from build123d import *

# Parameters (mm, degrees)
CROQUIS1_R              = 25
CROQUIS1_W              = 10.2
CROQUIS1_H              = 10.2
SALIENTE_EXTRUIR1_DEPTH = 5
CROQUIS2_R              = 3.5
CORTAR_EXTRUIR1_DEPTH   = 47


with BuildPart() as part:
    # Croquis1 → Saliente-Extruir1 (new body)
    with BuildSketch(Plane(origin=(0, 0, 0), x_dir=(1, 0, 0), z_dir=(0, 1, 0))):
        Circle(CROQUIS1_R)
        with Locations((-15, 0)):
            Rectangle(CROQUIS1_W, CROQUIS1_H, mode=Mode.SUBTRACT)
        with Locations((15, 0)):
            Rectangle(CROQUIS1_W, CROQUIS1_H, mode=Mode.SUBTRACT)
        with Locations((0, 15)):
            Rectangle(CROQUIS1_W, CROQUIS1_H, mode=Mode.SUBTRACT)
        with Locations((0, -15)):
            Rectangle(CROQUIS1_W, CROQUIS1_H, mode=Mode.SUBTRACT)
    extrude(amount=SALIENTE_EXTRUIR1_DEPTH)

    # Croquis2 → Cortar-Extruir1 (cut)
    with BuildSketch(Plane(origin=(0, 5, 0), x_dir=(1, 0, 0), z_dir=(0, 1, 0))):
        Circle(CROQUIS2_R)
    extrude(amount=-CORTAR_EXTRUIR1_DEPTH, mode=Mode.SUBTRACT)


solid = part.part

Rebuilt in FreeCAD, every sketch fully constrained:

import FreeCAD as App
import Part
import Sketcher
from FreeCAD import Vector
Q = App.Units.Quantity

doc = App.newDocument("Part")
body = doc.addObject("PartDesign::Body", "Body")

# Sketch on XZ plane
sketch1 = doc.addObject("Sketcher::SketchObject", "Sketch")
body.addObject(sketch1)
sketch1.AttachmentSupport = (doc.XZ_Plane, [""])
sketch1.MapMode = "FlatFace"
sketch1.addGeometry(Part.Circle(Vector(0, 0, 0), Vector(0, 0, 1), 25), False)
sketch1.addGeometry(Part.LineSegment(Vector(5.1, 20.1, 0), Vector(-5.1, 20.1, 0)), False)
sketch1.addGeometry(Part.LineSegment(Vector(-5.1, 20.1, 0), Vector(-5.1, 9.9, 0)), False)
sketch1.addGeometry(Part.LineSegment(Vector(-5.1, 9.9, 0), Vector(5.1, 9.9, 0)), False)
sketch1.addGeometry(Part.LineSegment(Vector(5.1, 9.9, 0), Vector(5.1, 20.1, 0)), False)
sketch1.addGeometry(Part.LineSegment(Vector(-9.9, 5.1, 0), Vector(-20.1, 5.1, 0)), False)
sketch1.addGeometry(Part.LineSegment(Vector(-20.1, 5.1, 0), Vector(-20.1, -5.1, 0)), False)
sketch1.addGeometry(Part.LineSegment(Vector(-20.1, -5.1, 0), Vector(-9.9, -5.1, 0)), False)
sketch1.addGeometry(Part.LineSegment(Vector(-9.9, -5.1, 0), Vector(-9.9, 5.1, 0)), False)
sketch1.addGeometry(Part.LineSegment(Vector(20.1, 5.1, 0), Vector(9.9, 5.1, 0)), False)
sketch1.addGeometry(Part.LineSegment(Vector(9.9, 5.1, 0), Vector(9.9, -5.1, 0)), False)
sketch1.addGeometry(Part.LineSegment(Vector(9.9, -5.1, 0), Vector(20.1, -5.1, 0)), False)
sketch1.addGeometry(Part.LineSegment(Vector(20.1, -5.1, 0), Vector(20.1, 5.1, 0)), False)
sketch1.addGeometry(Part.LineSegment(Vector(5.1, -9.9, 0), Vector(-5.1, -9.9, 0)), False)
sketch1.addGeometry(Part.LineSegment(Vector(-5.1, -9.9, 0), Vector(-5.1, -20.1, 0)), False)
sketch1.addGeometry(Part.LineSegment(Vector(-5.1, -20.1, 0), Vector(5.1, -20.1, 0)), False)
sketch1.addGeometry(Part.LineSegment(Vector(5.1, -20.1, 0), Vector(5.1, -9.9, 0)), False)
sketch1.addConstraint(Sketcher.Constraint("Coincident", 1, 2, 2, 1))
sketch1.addConstraint(Sketcher.Constraint("Coincident", 2, 2, 3, 1))
sketch1.addConstraint(Sketcher.Constraint("Coincident", 3, 2, 4, 1))
sketch1.addConstraint(Sketcher.Constraint("Coincident", 4, 2, 1, 1))
sketch1.addConstraint(Sketcher.Constraint("Coincident", 5, 2, 6, 1))
sketch1.addConstraint(Sketcher.Constraint("Coincident", 6, 2, 7, 1))
sketch1.addConstraint(Sketcher.Constraint("Coincident", 7, 2, 8, 1))
sketch1.addConstraint(Sketcher.Constraint("Coincident", 8, 2, 5, 1))
sketch1.addConstraint(Sketcher.Constraint("Coincident", 9, 2, 10, 1))
sketch1.addConstraint(Sketcher.Constraint("Coincident", 10, 2, 11, 1))
sketch1.addConstraint(Sketcher.Constraint("Coincident", 11, 2, 12, 1))
sketch1.addConstraint(Sketcher.Constraint("Coincident", 12, 2, 9, 1))
sketch1.addConstraint(Sketcher.Constraint("Coincident", 13, 2, 14, 1))
sketch1.addConstraint(Sketcher.Constraint("Coincident", 14, 2, 15, 1))
sketch1.addConstraint(Sketcher.Constraint("Coincident", 15, 2, 16, 1))
sketch1.addConstraint(Sketcher.Constraint("Coincident", 16, 2, 13, 1))
sketch1.addConstraint(Sketcher.Constraint("Horizontal", 1))
sketch1.addConstraint(Sketcher.Constraint("Vertical", 2))
sketch1.addConstraint(Sketcher.Constraint("Horizontal", 3))
sketch1.addConstraint(Sketcher.Constraint("Vertical", 4))
sketch1.addConstraint(Sketcher.Constraint("Horizontal", 5))
sketch1.addConstraint(Sketcher.Constraint("Vertical", 6))
sketch1.addConstraint(Sketcher.Constraint("Horizontal", 7))
sketch1.addConstraint(Sketcher.Constraint("Vertical", 8))
sketch1.addConstraint(Sketcher.Constraint("Horizontal", 9))
sketch1.addConstraint(Sketcher.Constraint("Vertical", 10))
sketch1.addConstraint(Sketcher.Constraint("Horizontal", 11))
sketch1.addConstraint(Sketcher.Constraint("Vertical", 12))
sketch1.addConstraint(Sketcher.Constraint("Horizontal", 13))
sketch1.addConstraint(Sketcher.Constraint("Vertical", 14))
sketch1.addConstraint(Sketcher.Constraint("Horizontal", 15))
sketch1.addConstraint(Sketcher.Constraint("Vertical", 16))
sketch1.addConstraint(Sketcher.Constraint("Coincident", 0, 3, -1, 1))
sketch1.addConstraint(Sketcher.Constraint("Symmetric", 7, 2, 9, 2, -1, 1))
sketch1.addConstraint(Sketcher.Constraint("Symmetric", 5, 2, 11, 2, -1, 1))
sketch1.addConstraint(Sketcher.Constraint("Symmetric", 3, 2, 13, 2, -1, 1))
sketch1.addConstraint(Sketcher.Constraint("Symmetric", 1, 2, 15, 2, -1, 1))
sketch1.addConstraint(Sketcher.Constraint("Horizontal", 8, 2, 9, 2))
sketch1.addConstraint(Sketcher.Constraint("Vertical", 2, 2, 13, 2))
sketch1.addConstraint(Sketcher.Constraint("Equal", 3, 5))
sketch1.addConstraint(Sketcher.Constraint("Equal", 15, 2))
sketch1.addConstraint(Sketcher.Constraint("Equal", 4, 6))
sketch1.addConstraint(Sketcher.Constraint("Diameter", 0, Q("50 mm")))
sketch1.addConstraint(Sketcher.Constraint("DistanceX", 1, 2, 1, 1, Q("10.2 mm")))
sketch1.addConstraint(Sketcher.Constraint("DistanceX", 5, 2, 2, 2, Q("15 mm")))
sketch1.addConstraint(Sketcher.Constraint("DistanceY", 5, 2, 1, 2, Q("15 mm")))
pad1 = doc.addObject("PartDesign::Pad", "Pad")
body.addObject(pad1)
pad1.Profile = sketch1
pad1.Length = 5
pad1.Reversed = True

# Sketch on XZ plane
sketch2 = doc.addObject("Sketcher::SketchObject", "Sketch001")
body.addObject(sketch2)
sketch2.AttachmentSupport = (doc.XZ_Plane, [""])
sketch2.MapMode = "FlatFace"
sketch2.AttachmentOffset = App.Placement(Vector(0, 0, -5), App.Rotation())
sketch2.addGeometry(Part.Circle(Vector(0, 0, 0), Vector(0, 0, 1), 3.5), False)
sketch2.addConstraint(Sketcher.Constraint("Coincident", 0, 3, -1, 1))
sketch2.addConstraint(Sketcher.Constraint("Diameter", 0, Q("7 mm")))
pocket1 = doc.addObject("PartDesign::Pocket", "Pocket")
body.addObject(pocket1)
pocket1.Profile = sketch2
pocket1.Length = 47
pocket1.Reversed = True

doc.recompute()
